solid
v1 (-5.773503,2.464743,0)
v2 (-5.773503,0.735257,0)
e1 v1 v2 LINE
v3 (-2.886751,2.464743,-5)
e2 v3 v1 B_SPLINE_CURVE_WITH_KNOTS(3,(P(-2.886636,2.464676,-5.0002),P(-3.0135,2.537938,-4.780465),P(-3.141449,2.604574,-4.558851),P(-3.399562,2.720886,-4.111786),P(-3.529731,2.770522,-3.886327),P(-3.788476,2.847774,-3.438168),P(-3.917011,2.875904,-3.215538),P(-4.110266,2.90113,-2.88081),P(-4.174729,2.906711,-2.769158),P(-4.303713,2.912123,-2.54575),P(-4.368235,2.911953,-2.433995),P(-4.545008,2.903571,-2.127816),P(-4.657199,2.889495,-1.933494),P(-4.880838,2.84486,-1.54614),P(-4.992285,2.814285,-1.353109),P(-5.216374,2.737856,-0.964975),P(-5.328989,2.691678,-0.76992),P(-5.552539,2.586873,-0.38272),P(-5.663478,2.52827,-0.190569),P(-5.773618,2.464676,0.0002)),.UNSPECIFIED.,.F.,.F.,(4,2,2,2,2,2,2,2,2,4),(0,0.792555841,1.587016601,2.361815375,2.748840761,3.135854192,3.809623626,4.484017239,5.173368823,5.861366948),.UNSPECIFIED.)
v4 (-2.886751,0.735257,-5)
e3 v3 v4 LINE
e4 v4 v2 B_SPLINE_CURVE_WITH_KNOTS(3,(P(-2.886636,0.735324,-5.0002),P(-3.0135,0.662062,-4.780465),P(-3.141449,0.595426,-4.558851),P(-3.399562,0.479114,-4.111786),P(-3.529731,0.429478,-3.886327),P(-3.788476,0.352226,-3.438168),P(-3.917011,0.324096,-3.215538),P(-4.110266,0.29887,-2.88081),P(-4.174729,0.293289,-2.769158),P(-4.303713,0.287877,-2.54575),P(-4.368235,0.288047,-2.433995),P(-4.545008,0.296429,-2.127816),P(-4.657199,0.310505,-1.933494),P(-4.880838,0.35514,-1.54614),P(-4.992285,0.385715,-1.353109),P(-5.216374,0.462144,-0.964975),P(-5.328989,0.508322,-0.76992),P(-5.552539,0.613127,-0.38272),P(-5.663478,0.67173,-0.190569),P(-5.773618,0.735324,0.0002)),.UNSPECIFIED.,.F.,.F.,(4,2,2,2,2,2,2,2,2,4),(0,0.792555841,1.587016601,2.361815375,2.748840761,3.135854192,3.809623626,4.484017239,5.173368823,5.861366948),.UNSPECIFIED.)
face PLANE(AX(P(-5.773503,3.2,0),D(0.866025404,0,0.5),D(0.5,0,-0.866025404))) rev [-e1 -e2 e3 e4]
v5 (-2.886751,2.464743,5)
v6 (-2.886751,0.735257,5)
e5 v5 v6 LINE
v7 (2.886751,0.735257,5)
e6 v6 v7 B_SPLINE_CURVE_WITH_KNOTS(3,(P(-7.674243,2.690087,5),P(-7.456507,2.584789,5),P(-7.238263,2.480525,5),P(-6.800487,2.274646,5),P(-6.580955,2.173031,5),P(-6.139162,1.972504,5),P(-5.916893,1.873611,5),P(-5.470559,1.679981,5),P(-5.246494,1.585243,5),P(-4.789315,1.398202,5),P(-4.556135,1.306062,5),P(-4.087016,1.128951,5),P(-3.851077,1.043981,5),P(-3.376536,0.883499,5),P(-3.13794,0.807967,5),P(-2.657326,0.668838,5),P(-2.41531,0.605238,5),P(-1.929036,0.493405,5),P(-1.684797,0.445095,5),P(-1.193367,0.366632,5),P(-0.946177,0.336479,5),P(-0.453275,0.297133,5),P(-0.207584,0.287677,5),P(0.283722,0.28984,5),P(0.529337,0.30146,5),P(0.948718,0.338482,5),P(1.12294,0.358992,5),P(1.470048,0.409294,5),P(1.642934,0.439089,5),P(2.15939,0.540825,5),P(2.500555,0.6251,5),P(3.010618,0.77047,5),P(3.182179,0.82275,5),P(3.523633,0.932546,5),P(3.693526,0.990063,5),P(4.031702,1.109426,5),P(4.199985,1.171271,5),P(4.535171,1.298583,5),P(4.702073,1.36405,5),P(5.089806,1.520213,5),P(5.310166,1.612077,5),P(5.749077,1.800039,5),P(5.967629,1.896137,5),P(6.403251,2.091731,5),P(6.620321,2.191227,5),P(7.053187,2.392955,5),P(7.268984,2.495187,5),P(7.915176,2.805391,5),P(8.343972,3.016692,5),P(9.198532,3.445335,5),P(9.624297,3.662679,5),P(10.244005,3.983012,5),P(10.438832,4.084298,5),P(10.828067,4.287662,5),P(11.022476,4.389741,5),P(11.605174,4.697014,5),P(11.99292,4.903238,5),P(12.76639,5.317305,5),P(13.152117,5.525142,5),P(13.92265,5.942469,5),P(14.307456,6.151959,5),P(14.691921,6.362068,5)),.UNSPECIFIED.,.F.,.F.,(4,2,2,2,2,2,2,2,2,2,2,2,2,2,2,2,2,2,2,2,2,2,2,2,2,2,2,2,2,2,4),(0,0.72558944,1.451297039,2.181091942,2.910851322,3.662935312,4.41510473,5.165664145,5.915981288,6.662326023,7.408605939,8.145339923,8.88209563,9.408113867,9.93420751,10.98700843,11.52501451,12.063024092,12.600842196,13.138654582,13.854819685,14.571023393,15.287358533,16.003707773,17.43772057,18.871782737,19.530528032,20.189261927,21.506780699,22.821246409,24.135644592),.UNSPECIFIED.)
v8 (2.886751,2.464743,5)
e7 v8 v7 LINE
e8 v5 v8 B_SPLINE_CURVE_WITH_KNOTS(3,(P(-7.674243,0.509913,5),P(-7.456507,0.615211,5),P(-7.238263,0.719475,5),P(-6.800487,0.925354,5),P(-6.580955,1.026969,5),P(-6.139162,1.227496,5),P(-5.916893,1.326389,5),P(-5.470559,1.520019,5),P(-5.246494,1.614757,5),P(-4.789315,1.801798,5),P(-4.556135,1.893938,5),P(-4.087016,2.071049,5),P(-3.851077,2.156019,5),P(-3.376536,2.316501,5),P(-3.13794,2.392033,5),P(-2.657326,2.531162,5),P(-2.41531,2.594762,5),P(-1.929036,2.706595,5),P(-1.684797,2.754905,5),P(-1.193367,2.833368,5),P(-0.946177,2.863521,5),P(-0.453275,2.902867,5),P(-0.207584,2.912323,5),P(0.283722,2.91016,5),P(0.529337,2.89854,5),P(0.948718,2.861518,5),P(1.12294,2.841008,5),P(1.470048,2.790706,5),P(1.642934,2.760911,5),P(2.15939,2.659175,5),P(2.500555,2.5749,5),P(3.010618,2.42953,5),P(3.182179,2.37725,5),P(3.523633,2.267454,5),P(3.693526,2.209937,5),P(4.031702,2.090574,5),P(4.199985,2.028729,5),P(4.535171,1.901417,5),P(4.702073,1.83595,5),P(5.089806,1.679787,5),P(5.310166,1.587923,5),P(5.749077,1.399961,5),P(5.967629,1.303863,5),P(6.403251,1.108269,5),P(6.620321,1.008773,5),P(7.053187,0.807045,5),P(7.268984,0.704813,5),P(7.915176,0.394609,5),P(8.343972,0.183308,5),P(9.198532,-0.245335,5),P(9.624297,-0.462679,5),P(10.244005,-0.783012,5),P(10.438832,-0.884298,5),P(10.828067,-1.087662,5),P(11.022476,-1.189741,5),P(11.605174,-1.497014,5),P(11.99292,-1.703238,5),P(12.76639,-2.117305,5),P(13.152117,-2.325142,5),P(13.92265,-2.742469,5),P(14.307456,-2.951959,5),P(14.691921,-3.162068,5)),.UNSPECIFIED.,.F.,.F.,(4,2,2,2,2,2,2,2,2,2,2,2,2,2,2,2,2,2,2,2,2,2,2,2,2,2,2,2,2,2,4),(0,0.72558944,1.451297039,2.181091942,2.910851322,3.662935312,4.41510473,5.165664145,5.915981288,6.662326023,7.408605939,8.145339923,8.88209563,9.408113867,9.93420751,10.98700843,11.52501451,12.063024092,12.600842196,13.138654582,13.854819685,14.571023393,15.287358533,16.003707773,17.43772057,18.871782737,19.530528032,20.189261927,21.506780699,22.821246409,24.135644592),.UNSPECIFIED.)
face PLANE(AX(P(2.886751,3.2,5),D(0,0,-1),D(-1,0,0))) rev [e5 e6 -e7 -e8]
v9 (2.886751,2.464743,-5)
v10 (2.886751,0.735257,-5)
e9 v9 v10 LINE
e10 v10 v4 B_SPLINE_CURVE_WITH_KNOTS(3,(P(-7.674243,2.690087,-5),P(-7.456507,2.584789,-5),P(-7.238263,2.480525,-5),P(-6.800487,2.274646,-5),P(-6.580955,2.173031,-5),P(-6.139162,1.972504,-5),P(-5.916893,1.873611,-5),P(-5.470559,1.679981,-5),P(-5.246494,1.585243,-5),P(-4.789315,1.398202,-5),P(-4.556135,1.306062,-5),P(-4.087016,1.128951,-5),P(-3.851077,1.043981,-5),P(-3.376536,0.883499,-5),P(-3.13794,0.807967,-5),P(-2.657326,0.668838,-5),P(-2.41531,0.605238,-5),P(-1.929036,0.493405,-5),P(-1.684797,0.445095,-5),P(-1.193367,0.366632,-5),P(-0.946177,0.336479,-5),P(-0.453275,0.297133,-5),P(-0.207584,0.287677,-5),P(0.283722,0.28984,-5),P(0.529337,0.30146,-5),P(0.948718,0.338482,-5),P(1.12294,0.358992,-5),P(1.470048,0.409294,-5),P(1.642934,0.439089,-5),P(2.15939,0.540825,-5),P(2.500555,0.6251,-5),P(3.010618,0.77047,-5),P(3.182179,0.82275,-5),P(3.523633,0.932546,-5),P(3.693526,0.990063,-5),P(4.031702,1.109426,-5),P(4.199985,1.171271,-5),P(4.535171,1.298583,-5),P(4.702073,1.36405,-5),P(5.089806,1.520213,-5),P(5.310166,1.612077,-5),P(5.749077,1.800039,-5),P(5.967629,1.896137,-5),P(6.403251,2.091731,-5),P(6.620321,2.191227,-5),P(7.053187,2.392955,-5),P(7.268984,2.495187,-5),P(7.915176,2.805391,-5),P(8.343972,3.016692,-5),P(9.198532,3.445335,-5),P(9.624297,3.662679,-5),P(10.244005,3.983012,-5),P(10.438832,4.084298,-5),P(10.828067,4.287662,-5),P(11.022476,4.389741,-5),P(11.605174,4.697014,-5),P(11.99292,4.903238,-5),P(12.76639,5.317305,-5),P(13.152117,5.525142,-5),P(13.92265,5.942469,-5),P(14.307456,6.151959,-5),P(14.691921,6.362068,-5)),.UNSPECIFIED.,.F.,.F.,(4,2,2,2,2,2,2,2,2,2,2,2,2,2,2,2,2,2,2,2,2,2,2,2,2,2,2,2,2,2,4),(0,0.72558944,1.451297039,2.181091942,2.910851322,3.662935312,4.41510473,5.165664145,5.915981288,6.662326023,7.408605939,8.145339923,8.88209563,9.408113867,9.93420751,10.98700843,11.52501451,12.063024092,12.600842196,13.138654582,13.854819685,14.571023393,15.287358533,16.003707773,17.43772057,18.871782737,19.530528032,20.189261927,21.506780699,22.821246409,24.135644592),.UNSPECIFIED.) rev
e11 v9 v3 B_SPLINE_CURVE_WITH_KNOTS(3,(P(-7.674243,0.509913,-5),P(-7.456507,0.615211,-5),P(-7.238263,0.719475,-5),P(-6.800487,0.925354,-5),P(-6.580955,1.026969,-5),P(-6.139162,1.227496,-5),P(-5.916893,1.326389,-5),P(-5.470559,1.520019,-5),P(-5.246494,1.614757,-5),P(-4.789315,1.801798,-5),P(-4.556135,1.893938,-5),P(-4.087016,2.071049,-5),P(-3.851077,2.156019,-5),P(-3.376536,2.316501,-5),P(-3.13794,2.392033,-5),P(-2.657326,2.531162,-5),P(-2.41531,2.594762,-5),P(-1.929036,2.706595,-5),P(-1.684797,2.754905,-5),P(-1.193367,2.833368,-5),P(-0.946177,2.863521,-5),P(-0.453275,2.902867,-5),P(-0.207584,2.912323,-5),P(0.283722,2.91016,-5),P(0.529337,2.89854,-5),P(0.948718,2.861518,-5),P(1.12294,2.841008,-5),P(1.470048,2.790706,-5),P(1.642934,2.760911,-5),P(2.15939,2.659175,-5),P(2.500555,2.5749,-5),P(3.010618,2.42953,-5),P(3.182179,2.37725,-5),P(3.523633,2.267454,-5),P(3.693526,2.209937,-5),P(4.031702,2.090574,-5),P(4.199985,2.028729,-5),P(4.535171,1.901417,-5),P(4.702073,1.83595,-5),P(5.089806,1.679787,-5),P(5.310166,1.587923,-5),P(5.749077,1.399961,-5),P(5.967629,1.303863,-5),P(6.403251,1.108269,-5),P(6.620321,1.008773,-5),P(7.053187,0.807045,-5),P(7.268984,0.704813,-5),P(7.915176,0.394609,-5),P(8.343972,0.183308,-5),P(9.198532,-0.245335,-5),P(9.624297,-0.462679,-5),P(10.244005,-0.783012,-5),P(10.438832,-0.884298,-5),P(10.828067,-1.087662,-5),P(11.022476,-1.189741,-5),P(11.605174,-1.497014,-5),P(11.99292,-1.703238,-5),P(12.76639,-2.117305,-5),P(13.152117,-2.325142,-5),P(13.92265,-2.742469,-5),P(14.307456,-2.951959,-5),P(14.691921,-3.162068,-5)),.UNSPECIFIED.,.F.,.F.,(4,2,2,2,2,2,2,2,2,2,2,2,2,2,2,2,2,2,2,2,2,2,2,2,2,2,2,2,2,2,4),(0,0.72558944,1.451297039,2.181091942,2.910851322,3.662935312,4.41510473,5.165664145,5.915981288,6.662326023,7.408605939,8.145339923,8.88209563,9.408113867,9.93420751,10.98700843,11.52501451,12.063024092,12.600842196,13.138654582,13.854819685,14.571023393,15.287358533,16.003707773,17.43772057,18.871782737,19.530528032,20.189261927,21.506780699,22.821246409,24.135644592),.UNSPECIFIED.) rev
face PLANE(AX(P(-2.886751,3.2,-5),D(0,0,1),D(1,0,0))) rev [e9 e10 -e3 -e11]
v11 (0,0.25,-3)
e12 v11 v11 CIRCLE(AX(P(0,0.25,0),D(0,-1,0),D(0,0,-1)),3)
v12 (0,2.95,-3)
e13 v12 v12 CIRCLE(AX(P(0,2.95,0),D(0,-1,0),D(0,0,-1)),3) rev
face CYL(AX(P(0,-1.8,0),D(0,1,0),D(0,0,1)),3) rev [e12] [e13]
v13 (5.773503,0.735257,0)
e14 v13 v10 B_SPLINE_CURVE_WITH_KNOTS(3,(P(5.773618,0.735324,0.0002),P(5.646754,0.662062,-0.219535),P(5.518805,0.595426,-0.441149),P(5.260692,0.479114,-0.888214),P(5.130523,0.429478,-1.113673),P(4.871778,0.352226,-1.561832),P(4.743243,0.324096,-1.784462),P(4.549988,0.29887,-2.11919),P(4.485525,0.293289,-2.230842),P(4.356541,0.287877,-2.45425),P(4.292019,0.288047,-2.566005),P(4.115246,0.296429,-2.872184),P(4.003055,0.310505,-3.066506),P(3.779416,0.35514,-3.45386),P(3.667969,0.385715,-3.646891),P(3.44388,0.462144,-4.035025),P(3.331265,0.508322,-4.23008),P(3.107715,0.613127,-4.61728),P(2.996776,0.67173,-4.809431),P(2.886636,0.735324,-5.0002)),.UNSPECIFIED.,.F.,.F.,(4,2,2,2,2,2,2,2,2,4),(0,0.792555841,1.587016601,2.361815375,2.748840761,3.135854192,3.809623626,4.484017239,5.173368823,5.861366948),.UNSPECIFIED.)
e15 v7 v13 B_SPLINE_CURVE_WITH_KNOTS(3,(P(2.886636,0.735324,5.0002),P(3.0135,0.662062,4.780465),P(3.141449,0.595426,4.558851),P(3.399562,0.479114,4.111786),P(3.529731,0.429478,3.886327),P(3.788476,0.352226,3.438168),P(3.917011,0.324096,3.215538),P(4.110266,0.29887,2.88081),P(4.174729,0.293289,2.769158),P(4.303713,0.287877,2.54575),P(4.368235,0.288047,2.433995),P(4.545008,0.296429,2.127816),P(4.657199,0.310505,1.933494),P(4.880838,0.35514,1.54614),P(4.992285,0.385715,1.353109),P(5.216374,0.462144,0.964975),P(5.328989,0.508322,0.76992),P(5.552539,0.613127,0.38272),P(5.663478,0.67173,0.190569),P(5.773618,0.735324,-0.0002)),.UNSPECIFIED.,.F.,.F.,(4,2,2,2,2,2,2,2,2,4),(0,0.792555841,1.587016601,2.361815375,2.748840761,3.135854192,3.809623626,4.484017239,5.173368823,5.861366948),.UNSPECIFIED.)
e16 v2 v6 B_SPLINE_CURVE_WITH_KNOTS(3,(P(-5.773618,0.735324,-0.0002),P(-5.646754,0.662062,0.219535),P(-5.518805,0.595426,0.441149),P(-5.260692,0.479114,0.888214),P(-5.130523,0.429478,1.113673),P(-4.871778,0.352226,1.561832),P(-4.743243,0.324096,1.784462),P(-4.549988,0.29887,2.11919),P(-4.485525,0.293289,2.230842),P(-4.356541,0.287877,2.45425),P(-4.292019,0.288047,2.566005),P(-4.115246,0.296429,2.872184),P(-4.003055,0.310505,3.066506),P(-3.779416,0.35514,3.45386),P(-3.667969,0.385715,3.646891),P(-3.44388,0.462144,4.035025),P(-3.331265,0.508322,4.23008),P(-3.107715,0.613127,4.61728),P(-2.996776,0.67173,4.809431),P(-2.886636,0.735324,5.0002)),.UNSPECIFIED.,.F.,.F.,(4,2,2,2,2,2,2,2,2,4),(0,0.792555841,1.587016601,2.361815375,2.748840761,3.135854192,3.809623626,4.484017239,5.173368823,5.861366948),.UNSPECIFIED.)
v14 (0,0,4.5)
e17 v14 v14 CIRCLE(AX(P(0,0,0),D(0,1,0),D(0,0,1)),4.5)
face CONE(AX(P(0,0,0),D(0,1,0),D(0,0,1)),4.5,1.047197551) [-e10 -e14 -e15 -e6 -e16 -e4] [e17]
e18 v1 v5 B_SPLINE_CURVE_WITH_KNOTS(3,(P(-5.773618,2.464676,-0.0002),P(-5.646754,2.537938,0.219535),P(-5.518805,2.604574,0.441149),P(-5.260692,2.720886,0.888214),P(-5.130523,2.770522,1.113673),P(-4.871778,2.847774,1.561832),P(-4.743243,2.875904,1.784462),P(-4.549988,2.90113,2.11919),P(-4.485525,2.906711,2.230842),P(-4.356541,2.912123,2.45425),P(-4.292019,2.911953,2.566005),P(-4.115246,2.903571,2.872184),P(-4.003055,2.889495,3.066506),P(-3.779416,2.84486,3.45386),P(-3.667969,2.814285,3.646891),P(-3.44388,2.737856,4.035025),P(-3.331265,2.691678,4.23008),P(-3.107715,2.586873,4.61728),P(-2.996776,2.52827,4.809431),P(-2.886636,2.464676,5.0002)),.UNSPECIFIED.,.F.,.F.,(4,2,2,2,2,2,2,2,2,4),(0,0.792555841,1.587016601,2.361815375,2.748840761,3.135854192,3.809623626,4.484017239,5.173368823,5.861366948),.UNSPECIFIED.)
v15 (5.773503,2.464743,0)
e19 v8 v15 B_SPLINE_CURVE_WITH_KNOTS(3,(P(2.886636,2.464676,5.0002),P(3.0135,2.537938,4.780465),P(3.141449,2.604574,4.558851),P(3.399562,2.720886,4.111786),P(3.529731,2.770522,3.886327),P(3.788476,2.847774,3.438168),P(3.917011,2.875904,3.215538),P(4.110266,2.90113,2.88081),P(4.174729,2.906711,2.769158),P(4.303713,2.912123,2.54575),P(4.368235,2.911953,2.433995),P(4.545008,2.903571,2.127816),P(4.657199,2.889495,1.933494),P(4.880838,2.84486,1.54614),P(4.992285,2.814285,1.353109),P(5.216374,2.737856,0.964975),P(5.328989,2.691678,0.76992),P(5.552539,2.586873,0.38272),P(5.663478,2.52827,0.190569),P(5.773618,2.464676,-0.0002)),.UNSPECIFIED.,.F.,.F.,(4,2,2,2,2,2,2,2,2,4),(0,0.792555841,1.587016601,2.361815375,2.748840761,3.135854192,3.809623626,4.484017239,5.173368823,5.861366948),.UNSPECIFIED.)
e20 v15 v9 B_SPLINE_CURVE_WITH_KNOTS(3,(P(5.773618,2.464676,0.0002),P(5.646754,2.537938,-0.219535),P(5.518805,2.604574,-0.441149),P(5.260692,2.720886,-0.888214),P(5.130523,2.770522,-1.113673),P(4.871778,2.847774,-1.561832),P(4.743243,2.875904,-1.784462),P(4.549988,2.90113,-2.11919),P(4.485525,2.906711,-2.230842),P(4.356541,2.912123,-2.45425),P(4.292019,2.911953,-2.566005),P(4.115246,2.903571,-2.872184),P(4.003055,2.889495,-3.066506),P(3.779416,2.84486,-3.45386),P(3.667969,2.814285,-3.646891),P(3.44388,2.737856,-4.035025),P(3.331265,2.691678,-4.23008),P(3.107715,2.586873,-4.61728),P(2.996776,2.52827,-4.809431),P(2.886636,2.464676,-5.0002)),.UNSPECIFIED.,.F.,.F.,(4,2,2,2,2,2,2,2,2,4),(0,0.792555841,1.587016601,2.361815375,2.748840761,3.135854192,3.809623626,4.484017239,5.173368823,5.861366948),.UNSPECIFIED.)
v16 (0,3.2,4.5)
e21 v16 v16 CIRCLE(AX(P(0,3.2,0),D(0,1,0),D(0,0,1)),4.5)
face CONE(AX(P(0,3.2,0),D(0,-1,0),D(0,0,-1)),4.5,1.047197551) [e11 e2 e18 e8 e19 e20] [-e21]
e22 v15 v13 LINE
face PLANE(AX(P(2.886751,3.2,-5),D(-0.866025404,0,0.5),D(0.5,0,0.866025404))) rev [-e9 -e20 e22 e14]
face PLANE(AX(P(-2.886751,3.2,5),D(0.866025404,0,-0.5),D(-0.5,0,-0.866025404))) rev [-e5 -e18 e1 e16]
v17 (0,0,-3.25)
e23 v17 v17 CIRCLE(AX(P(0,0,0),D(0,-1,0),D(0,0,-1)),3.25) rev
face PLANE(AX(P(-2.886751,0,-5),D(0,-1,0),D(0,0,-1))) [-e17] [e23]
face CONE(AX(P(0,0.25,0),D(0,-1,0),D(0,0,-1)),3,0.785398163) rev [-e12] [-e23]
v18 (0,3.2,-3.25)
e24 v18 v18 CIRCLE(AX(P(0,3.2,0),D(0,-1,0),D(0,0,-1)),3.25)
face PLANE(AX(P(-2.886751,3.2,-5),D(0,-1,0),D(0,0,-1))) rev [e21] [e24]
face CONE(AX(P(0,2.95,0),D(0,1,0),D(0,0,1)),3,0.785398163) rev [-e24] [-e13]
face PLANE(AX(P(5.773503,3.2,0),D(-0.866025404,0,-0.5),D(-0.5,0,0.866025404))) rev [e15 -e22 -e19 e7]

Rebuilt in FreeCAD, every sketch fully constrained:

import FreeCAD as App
import Part
import Sketcher
from FreeCAD import Vector
Q = App.Units.Quantity


def edges_at(feature, points):
    """Names of the edges that pass closest to the given points."""
    edges = feature.Shape.Edges
    near = lambda p: min(range(len(edges)), key=lambda i: edges[i].distToShape(Part.Vertex(*p))[0])
    return sorted({f"Edge{near(p) + 1}" for p in points})

doc = App.newDocument("Part")
params = doc.addObject("Spreadsheet::Sheet", "Params")
for row, (alias, value) in enumerate([
    ("pad1_length", "3.2 mm"),
    ("sketch2_diameter", "6 mm"),
    ("pocket1_length", "5 mm"),
    ("sketch3_width", "2 mm"),
    ("groove_angle", "360 deg"),
    ("chamfer_size", "0.25 mm"),
], start=1):
    params.set(f"A{row}", alias)
    params.set(f"B{row}", "=" + value)
    params.setAlias(f"B{row}", alias)

body = doc.addObject("PartDesign::Body", "Body")

# Sketch on XZ plane
sketch1 = body.newObject("Sketcher::SketchObject", "Sketch")
sketch1.AttachmentSupport = (doc.getObject("XZ_Plane"), [""])
sketch1.MapMode = "FlatFace"
sketch1.addGeometry([
    Part.LineSegment(Vector(3, -5, 0), Vector(-3, -5, 0)),  # 0
    Part.LineSegment(Vector(-3, -5, 0), Vector(-6, 0, 0)),  # 1
    Part.LineSegment(Vector(-6, 0, 0), Vector(-3, 5, 0)),  # 2
    Part.LineSegment(Vector(-3, 5, 0), Vector(3, 5, 0)),  # 3
    Part.LineSegment(Vector(3, 5, 0), Vector(6, 0, 0)),  # 4
    Part.LineSegment(Vector(6, 0, 0), Vector(3, -5, 0)),  # 5
], False)
sketch1.addConstraint([
    Sketcher.Constraint("Coincident", 0, 2, 1, 1),
    Sketcher.Constraint("Coincident", 1, 2, 2, 1),
    Sketcher.Constraint("Coincident", 2, 2, 3, 1),
    Sketcher.Constraint("Coincident", 3, 2, 4, 1),
    Sketcher.Constraint("Coincident", 4, 2, 5, 1),
    Sketcher.Constraint("Coincident", 5, 2, 0, 1),
    Sketcher.Constraint("Horizontal", 0),
    Sketcher.Constraint("Horizontal", 3),
    Sketcher.Constraint("Symmetric", 0, 2, 3, 2, -1, 1),
    Sketcher.Constraint("Symmetric", 1, 2, 4, 2, -1, 1),
    Sketcher.Constraint("PointOnObject", 1, 2, -1),
    Sketcher.Constraint("Parallel", 2, 5),
    Sketcher.Constraint("Vertical", 0, 2, 2, 2),
    Sketcher.Constraint("Angle", 1, Q("120 deg")),
    Sketcher.Constraint("DistanceY", 0, 2, -1, 1, 5.0),
    Sketcher.Constraint("DistanceX", 0, 2, 0, 1, 5.773503),
])
pad1 = body.newObject("PartDesign::Pad", "Pad")
pad1.Profile = sketch1
pad1.setExpression("Length", "Params.pad1_length")
pad1.Reversed = True

# Sketch on XZ plane
sketch2 = body.newObject("Sketcher::SketchObject", "Sketch001")
sketch2.AttachmentSupport = (doc.getObject("XZ_Plane"), [""])
sketch2.MapMode = "FlatFace"
sketch2.AttachmentOffset = App.Placement(Vector(0, 0, -3.2), App.Rotation())
sketch2.addGeometry(Part.Circle(Vector(0, 0, 0), Vector(0, 0, 1), 3), False)
sketch2.addConstraint([
    Sketcher.Constraint("Coincident", 0, 3, -1, 1),
    Sketcher.Constraint("Diameter", 0, 6.0),
])
sketch2.setExpression("Constraints[1]", "Params.sketch2_diameter")
pocket1 = body.newObject("PartDesign::Pocket", "Pocket")
pocket1.Profile = sketch2
pocket1.setExpression("Length", "Params.pocket1_length")
pocket1.Reversed = True

# Sketch on XY plane
sketch3 = body.newObject("Sketcher::SketchObject", "Sketch002")
sketch3.AttachmentSupport = (doc.getObject("XY_Plane"), [""])
sketch3.MapMode = "FlatFace"
sketch3.addGeometry([
    Part.LineSegment(Vector(-6.5, 2, 0), Vector(-4.5, 3.2, 0)),  # 0
    Part.LineSegment(Vector(-4.5, 3.2, 0), Vector(-6.5, 3.2, 0)),  # 1
    Part.LineSegment(Vector(-6.5, 3.2, 0), Vector(-6.5, 2, 0)),  # 2
    Part.LineSegment(Vector(-4.5, 0, 0), Vector(-6.5, 1.2, 0)),  # 3
    Part.LineSegment(Vector(-6.5, 1.2, 0), Vector(-6.5, 0, 0)),  # 4
    Part.LineSegment(Vector(-6.5, 0, 0), Vector(-4.5, 0, 0)),  # 5
], False)
sketch3.addConstraint([
    Sketcher.Constraint("Coincident", 0, 2, 1, 1),
    Sketcher.Constraint("Coincident", 1, 2, 2, 1),
    Sketcher.Constraint("Coincident", 2, 2, 0, 1),
    Sketcher.Constraint("Coincident", 3, 2, 4, 1),
    Sketcher.Constraint("Coincident", 4, 2, 5, 1),
    Sketcher.Constraint("Coincident", 5, 2, 3, 1),
    Sketcher.Constraint("Horizontal", 1),
    Sketcher.Constraint("Vertical", 2),
    Sketcher.Constraint("Vertical", 4),
    Sketcher.Constraint("Horizontal", 5),
    Sketcher.Constraint("PointOnObject", 4, 2, -1),
    Sketcher.Constraint("Vertical", 2, 2, 3, 2),
    Sketcher.Constraint("Vertical", 0, 2, 5, 2),
    Sketcher.Constraint("Equal", 2, 4),
    Sketcher.Constraint("DistanceX", 1, 2, 1, 1, 2.0),
    Sketcher.Constraint("Angle", 0, Q("30 deg")),
    Sketcher.Constraint("DistanceX", 0, 2, -1, 1, 4.5),
    Sketcher.Constraint("DistanceY", -1, 1, 0, 2, 3.2),
])
sketch3.setExpression("Constraints[14]", "Params.sketch3_width")
groove = body.newObject("PartDesign::Groove", "Groove")
groove.Profile = sketch3
groove.ReferenceAxis = (sketch3, ["V_Axis"])
groove.setExpression("Angle", "Params.groove_angle")
doc.recompute()

chamfer = body.newObject("PartDesign::Chamfer", "Chamfer")
chamfer.Base = (groove, edges_at(groove, [(0, 0, -3), (0, 3.2, -3)]))
chamfer.setExpression("Size", "Params.chamfer_size")

doc.recompute()
